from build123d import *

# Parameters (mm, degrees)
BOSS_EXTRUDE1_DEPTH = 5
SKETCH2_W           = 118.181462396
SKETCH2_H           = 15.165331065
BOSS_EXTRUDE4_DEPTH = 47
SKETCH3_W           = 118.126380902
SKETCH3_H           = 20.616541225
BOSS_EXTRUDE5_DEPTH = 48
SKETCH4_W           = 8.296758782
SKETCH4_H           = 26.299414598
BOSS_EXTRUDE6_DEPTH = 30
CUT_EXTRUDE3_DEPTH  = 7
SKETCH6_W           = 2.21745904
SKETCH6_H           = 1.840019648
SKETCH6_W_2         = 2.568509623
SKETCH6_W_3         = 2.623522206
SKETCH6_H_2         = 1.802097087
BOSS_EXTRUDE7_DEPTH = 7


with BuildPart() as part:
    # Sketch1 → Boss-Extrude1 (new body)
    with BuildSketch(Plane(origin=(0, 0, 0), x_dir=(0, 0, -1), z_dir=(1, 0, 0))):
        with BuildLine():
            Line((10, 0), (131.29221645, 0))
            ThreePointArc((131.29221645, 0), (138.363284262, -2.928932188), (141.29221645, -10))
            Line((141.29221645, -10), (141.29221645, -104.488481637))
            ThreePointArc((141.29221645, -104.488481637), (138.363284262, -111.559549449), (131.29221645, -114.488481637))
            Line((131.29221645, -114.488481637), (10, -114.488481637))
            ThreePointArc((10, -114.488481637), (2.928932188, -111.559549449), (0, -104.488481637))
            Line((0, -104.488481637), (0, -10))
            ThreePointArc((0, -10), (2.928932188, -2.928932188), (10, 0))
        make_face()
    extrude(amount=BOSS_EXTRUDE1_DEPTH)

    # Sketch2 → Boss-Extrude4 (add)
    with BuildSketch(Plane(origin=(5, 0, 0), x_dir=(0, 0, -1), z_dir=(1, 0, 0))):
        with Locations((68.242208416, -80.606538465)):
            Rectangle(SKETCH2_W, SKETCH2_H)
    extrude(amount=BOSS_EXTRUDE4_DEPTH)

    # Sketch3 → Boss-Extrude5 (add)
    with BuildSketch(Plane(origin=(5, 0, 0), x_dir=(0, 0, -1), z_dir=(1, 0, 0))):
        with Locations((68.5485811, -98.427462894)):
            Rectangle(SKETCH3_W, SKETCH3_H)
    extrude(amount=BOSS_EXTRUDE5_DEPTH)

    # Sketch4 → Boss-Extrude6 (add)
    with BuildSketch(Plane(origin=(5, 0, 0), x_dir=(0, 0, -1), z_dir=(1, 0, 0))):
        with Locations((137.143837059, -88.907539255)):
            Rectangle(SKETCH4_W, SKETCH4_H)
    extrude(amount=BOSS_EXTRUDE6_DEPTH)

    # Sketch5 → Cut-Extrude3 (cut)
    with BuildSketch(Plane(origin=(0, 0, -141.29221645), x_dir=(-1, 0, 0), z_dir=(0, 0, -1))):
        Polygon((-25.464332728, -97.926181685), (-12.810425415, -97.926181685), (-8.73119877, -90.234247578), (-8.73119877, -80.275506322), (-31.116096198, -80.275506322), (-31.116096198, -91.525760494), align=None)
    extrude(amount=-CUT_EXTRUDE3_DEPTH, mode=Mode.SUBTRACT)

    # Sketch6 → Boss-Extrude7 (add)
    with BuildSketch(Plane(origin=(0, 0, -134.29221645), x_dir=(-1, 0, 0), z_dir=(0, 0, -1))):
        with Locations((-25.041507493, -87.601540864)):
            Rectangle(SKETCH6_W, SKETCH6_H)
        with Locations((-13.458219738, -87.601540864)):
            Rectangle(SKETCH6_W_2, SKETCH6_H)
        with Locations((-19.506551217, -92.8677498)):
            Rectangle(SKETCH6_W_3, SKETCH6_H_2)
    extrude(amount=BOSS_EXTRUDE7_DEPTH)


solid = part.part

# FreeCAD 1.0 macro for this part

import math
import FreeCAD as App
import Part
import Sketcher
Q = App.Units.Quantity


def add_polygon(sketch, points):
    """Adds a closed chain of lines whose ends are joined by coincident constraints."""
    first, n = sketch.GeometryCount, len(points)
    for a, b in zip(points, points[1:] + points[:1]):
        sketch.addGeometry(Part.LineSegment(App.Vector(*a, 0), App.Vector(*b, 0)), False)
    for i in range(n):
        sketch.addConstraint(Sketcher.Constraint("Coincident", first + i, 2, first + (i + 1) % n, 1))

doc = App.newDocument("Part")
body = doc.addObject("PartDesign::Body", "Body")

# Sketch on YZ plane
sketch1 = doc.addObject("Sketcher::SketchObject", "Sketch")
body.addObject(sketch1)
sketch1.AttachmentSupport = (doc.YZ_Plane, [""])
sketch1.MapMode = "FlatFace"
sketch1.addGeometry([
    Part.LineSegment(App.Vector(0, -131, 0), App.Vector(0, -10, 0)),  # 0
    Part.ArcOfCircle(Part.Circle(App.Vector(-10, -10, 0), App.Vector(0, 0, 1), 10), math.radians(0), math.radians(90)),  # 1
    Part.LineSegment(App.Vector(-10, 0, 0), App.Vector(-104, 0, 0)),  # 2
    Part.ArcOfCircle(Part.Circle(App.Vector(-104, -10, 0), App.Vector(0, 0, 1), 10), math.radians(90), math.radians(180)),  # 3
    Part.LineSegment(App.Vector(-114, -10, 0), App.Vector(-114, -131, 0)),  # 4
    Part.ArcOfCircle(Part.Circle(App.Vector(-104, -131, 0), App.Vector(0, 0, 1), 10), math.radians(180), math.radians(270)),  # 5
    Part.LineSegment(App.Vector(-104, -141, 0), App.Vector(-10, -141, 0)),  # 6
    Part.ArcOfCircle(Part.Circle(App.Vector(-10, -131, 0), App.Vector(0, 0, 1), 10), math.radians(-90), math.radians(0)),  # 7
], False)
sketch1.addConstraint([
    Sketcher.Constraint("Tangent", 0, 2, 1, 1),
    Sketcher.Constraint("Tangent", 1, 2, 2, 1),
    Sketcher.Constraint("Tangent", 2, 2, 3, 1),
    Sketcher.Constraint("Tangent", 3, 2, 4, 1),
    Sketcher.Constraint("Tangent", 4, 2, 5, 1),
    Sketcher.Constraint("Tangent", 5, 2, 6, 1),
    Sketcher.Constraint("Tangent", 6, 2, 7, 1),
    Sketcher.Constraint("Tangent", 7, 2, 0, 1),
    Sketcher.Constraint("Vertical", 0),
    Sketcher.Constraint("Horizontal", 2),
    Sketcher.Constraint("Vertical", 4),
    Sketcher.Constraint("Horizontal", 6),
    Sketcher.Constraint("Equal", 1, 3),
    Sketcher.Constraint("Equal", 3, 5),
    Sketcher.Constraint("Equal", 5, 7),
    Sketcher.Constraint("PointOnObject", 0, 2, -2),
    Sketcher.Constraint("PointOnObject", 1, 2, -1),
    Sketcher.Constraint("Radius", 1, Q("10 mm")),
    Sketcher.Constraint("DistanceX", 2, 2, 2, 1, Q("94.488482 mm")),
    Sketcher.Constraint("DistanceY", 0, 1, 0, 2, Q("121.292216 mm")),
])
pad1 = doc.addObject("PartDesign::Pad", "Pad")
body.addObject(pad1)
pad1.Profile = sketch1
pad1.Length = 5

# Sketch on YZ plane
sketch2 = doc.addObject("Sketcher::SketchObject", "Sketch001")
body.addObject(sketch2)
sketch2.AttachmentSupport = (doc.YZ_Plane, [""])
sketch2.MapMode = "FlatFace"
sketch2.AttachmentOffset = App.Placement(App.Vector(0, 0, 5), App.Rotation())
add_polygon(sketch2, [(-73, -9), (-88, -9), (-88, -127), (-73, -127)])  # lines 0-3
sketch2.addConstraint([
    Sketcher.Constraint("Horizontal", 0),
    Sketcher.Constraint("Vertical", 1),
    Sketcher.Constraint("Horizontal", 2),
    Sketcher.Constraint("Vertical", 3),
    Sketcher.Constraint("DistanceX", 0, 2, 0, 1, Q("15.165331 mm")),
    Sketcher.Constraint("DistanceY", 1, 2, 1, 1, Q("118.181462 mm")),
    Sketcher.Constraint("DistanceY", 1, 2, -1, 1, Q("127.33294 mm")),
    Sketcher.Constraint("DistanceX", 0, 2, -1, 1, Q("88.189204 mm")),
])
pad2 = doc.addObject("PartDesign::Pad", "Pad001")
body.addObject(pad2)
pad2.Profile = sketch2
pad2.Length = 47

# Sketch on YZ plane
sketch3 = doc.addObject("Sketcher::SketchObject", "Sketch002")
body.addObject(sketch3)
sketch3.AttachmentSupport = (doc.YZ_Plane, [""])
sketch3.MapMode = "FlatFace"
sketch3.AttachmentOffset = App.Placement(App.Vector(0, 0, 5), App.Rotation())
add_polygon(sketch3, [(-88, -9), (-109, -9), (-109, -128), (-88, -128)])  # lines 0-3
sketch3.addConstraint([
    Sketcher.Constraint("Horizontal", 0),
    Sketcher.Constraint("Vertical", 1),
    Sketcher.Constraint("Horizontal", 2),
    Sketcher.Constraint("Vertical", 3),
    Sketcher.Constraint("DistanceX", 0, 2, 0, 1, Q("20.616541 mm")),
    Sketcher.Constraint("DistanceY", 1, 2, 1, 1, Q("118.126381 mm")),
    Sketcher.Constraint("DistanceY", 0, 2, -1, 1, Q("9.485391 mm")),
    Sketcher.Constraint("DistanceX", 0, 2, -1, 1, Q("108.735734 mm")),
])
pad3 = doc.addObject("PartDesign::Pad", "Pad002")
body.addObject(pad3)
pad3.Profile = sketch3
pad3.Length = 48

# Sketch on YZ plane
sketch4 = doc.addObject("Sketcher::SketchObject", "Sketch003")
body.addObject(sketch4)
sketch4.AttachmentSupport = (doc.YZ_Plane, [""])
sketch4.MapMode = "FlatFace"
sketch4.AttachmentOffset = App.Placement(App.Vector(0, 0, 5), App.Rotation())
add_polygon(sketch4, [(-76, -133), (-102, -133), (-102, -141), (-76, -141)])  # lines 0-3
sketch4.addConstraint([
    Sketcher.Constraint("Horizontal", 0),
    Sketcher.Constraint("Vertical", 1),
    Sketcher.Constraint("Horizontal", 2),
    Sketcher.Constraint("Vertical", 3),
    Sketcher.Constraint("DistanceY", 1, 2, 1, 1, Q("8.296759 mm")),
    Sketcher.Constraint("DistanceX", 0, 2, 0, 1, Q("26.299415 mm")),
    Sketcher.Constraint("DistanceX", 2, 2, -1, 1, Q("75.757832 mm")),
    Sketcher.Constraint("DistanceY", 0, 2, -1, 1, Q("132.995458 mm")),
])
pad4 = doc.addObject("PartDesign::Pad", "Pad003")
body.addObject(pad4)
pad4.Profile = sketch4
pad4.Length = 30

# Sketch on XY plane
sketch5 = doc.addObject("Sketcher::SketchObject", "Sketch004")
body.addObject(sketch5)
sketch5.AttachmentSupport = (doc.XY_Plane, [""])
sketch5.MapMode = "FlatFace"
sketch5.AttachmentOffset = App.Placement(App.Vector(0, 0, -141.292216), App.Rotation())
add_polygon(sketch5, [(25, -98), (13, -98), (9, -90), (9, -80), (31, -80), (31, -92)])  # lines 0-5
sketch5.addConstraint([
    Sketcher.Constraint("Horizontal", 0),
    Sketcher.Constraint("Vertical", 2),
    Sketcher.Constraint("Horizontal", 3),
    Sketcher.Constraint("Vertical", 4),
    Sketcher.Constraint("DistanceY", 2, 1, 2, 2, Q("9.958741 mm")),
    Sketcher.Constraint("DistanceX", -1, 1, 1, 2, Q("8.731199 mm")),
    Sketcher.Constraint("Distance", 1, Q("8.706661 mm")),
    Sketcher.Constraint("DistanceX", 0, 2, 0, 1, Q("12.653907 mm")),
    Sketcher.Constraint("DistanceX", 3, 1, 3, 2, Q("22.384897 mm")),
    Sketcher.Constraint("DistanceY", 4, 2, 4, 1, Q("11.250254 mm")),
    Sketcher.Constraint("DistanceY", 0, 2, -1, 1, Q("97.926182 mm")),
    Sketcher.Constraint("DistanceY", 4, 2, -1, 1, Q("91.52576 mm")),
])
pocket1 = doc.addObject("PartDesign::Pocket", "Pocket")
body.addObject(pocket1)
pocket1.Profile = sketch5
pocket1.Length = 7
pocket1.Reversed = True

# Sketch on XY plane
sketch6 = doc.addObject("Sketcher::SketchObject", "Sketch005")
body.addObject(sketch6)
sketch6.AttachmentSupport = (doc.XY_Plane, [""])
sketch6.MapMode = "FlatFace"
sketch6.AttachmentOffset = App.Placement(App.Vector(0, 0, -134.292216), App.Rotation())
add_polygon(sketch6, [(26.2, -86.7), (26.2, -88.5), (23.9, -88.5), (23.9, -86.7)])  # lines 0-3
add_polygon(sketch6, [(14.7, -86.7), (14.7, -88.5), (12.2, -88.5), (12.2, -86.7)])  # lines 4-7
add_polygon(sketch6, [(20.8, -92), (20.8, -93.8), (18.2, -93.8), (18.2, -92)])  # lines 8-11
sketch6.addConstraint([
    Sketcher.Constraint("Vertical", 0),
    Sketcher.Constraint("Horizontal", 1),
    Sketcher.Constraint("Vertical", 2),
    Sketcher.Constraint("Horizontal", 3),
    Sketcher.Constraint("Vertical", 4),
    Sketcher.Constraint("Horizontal", 5),
    Sketcher.Constraint("Vertical", 6),
    Sketcher.Constraint("Horizontal", 7),
    Sketcher.Constraint("Vertical", 8),
    Sketcher.Constraint("Horizontal", 9),
    Sketcher.Constraint("Vertical", 10),
    Sketcher.Constraint("Horizontal", 11),
    Sketcher.Constraint("Horizontal", 1, 2, 4, 2),
    Sketcher.Constraint("Horizontal", 3, 2, 6, 2),
    Sketcher.Constraint("DistanceX", 1, 2, 1, 1, Q("2.217459 mm")),
    Sketcher.Constraint("DistanceX", 5, 2, 5, 1, Q("2.56851 mm")),
    Sketcher.Constraint("DistanceY", 0, 2, 0, 1, Q("1.84002 mm")),
    Sketcher.Constraint("DistanceY", 8, 2, -1, 1, Q("93.768798 mm")),
    Sketcher.Constraint("DistanceY", 10, 2, -1, 1, Q("91.966701 mm")),
    Sketcher.Constraint("DistanceX", 9, 2, 9, 1, Q("2.623522 mm")),
    Sketcher.Constraint("DistanceY", 0, 2, -1, 1, Q("88.521551 mm")),
    Sketcher.Constraint("DistanceX", -1, 1, 9, 2, Q("18.19479 mm")),
    Sketcher.Constraint("DistanceX", -1, 1, 0, 2, Q("26.150237 mm")),
    Sketcher.Constraint("DistanceX", -1, 1, 4, 2, Q("14.742475 mm")),
])
pad5 = doc.addObject("PartDesign::Pad", "Pad004")
body.addObject(pad5)
pad5.Profile = sketch6
pad5.Length = 7
pad5.Reversed = True

doc.recompute()
